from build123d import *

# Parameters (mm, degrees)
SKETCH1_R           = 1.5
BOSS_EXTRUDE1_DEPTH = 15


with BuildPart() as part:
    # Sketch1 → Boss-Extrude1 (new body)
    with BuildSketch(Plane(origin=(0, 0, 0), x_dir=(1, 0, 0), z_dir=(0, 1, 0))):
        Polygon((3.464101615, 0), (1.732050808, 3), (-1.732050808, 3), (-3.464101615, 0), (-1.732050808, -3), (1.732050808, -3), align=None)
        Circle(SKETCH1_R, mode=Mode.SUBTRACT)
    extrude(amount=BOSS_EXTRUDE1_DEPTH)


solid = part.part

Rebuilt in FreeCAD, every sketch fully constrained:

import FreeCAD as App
import Part
import Sketcher
from FreeCAD import Vector
Q = App.Units.Quantity

doc = App.newDocument("Part")
body = doc.addObject("PartDesign::Body", "Body")

# Sketch on XZ plane
sketch1 = body.newObject("Sketcher::SketchObject", "Sketch")
sketch1.AttachmentSupport = (doc.getObject("XZ_Plane"), [""])
sketch1.MapMode = "FlatFace"
sketch1.addGeometry(Part.LineSegment(Vector(3.5, 0, 0), Vector(1.7, -3, 0)), False)
sketch1.addGeometry(Part.LineSegment(Vector(1.7, -3, 0), Vector(-1.7, -3, 0)), False)
sketch1.addGeometry(Part.LineSegment(Vector(-1.7, -3, 0), Vector(-3.5, 0, 0)), False)
sketch1.addGeometry(Part.LineSegment(Vector(-3.5, 0, 0), Vector(-1.7, 3, 0)), False)
sketch1.addGeometry(Part.LineSegment(Vector(-1.7, 3, 0), Vector(1.7, 3, 0)), False)
sketch1.addGeometry(Part.LineSegment(Vector(1.7, 3, 0), Vector(3.5, 0, 0)), False)
sketch1.addGeometry(Part.Circle(Vector(0, 0, 0), Vector(0, 0, 1), 1.5), False)
sketch1.addConstraint(Sketcher.Constraint("Coincident", 0, 2, 1, 1))
sketch1.addConstraint(Sketcher.Constraint("Coincident", 1, 2, 2, 1))
sketch1.addConstraint(Sketcher.Constraint("Coincident", 2, 2, 3, 1))
sketch1.addConstraint(Sketcher.Constraint("Coincident", 3, 2, 4, 1))
sketch1.addConstraint(Sketcher.Constraint("Coincident", 4, 2, 5, 1))
sketch1.addConstraint(Sketcher.Constraint("Coincident", 5, 2, 0, 1))
sketch1.addConstraint(Sketcher.Constraint("Horizontal", 1))
sketch1.addConstraint(Sketcher.Constraint("Horizontal", 4))
sketch1.addConstraint(Sketcher.Constraint("Coincident", 6, 3, -1, 1))
sketch1.addConstraint(Sketcher.Constraint("Symmetric", 0, 2, 3, 2, -1, 1))
sketch1.addConstraint(Sketcher.Constraint("Symmetric", 2, 2, 5, 2, -1, 1))
sketch1.addConstraint(Sketcher.Constraint("PointOnObject", 2, 2, -1))
sketch1.addConstraint(Sketcher.Constraint("Parallel", 2, 5))
sketch1.addConstraint(Sketcher.Constraint("Vertical", 1, 2, 3, 2))
sketch1.addConstraint(Sketcher.Constraint("Diameter", 6, 3.0))
sketch1.addConstraint(Sketcher.Constraint("Angle", 0, Q("-120 deg")))
sketch1.addConstraint(Sketcher.Constraint("DistanceY", 0, 2, -1, 1, 3.0))
sketch1.addConstraint(Sketcher.Constraint("DistanceX", 1, 2, 1, 1, 3.464102))
pad1 = body.newObject("PartDesign::Pad", "Pad")
pad1.Profile = sketch1
pad1.Length = 15
pad1.Reversed = True

doc.recompute()
